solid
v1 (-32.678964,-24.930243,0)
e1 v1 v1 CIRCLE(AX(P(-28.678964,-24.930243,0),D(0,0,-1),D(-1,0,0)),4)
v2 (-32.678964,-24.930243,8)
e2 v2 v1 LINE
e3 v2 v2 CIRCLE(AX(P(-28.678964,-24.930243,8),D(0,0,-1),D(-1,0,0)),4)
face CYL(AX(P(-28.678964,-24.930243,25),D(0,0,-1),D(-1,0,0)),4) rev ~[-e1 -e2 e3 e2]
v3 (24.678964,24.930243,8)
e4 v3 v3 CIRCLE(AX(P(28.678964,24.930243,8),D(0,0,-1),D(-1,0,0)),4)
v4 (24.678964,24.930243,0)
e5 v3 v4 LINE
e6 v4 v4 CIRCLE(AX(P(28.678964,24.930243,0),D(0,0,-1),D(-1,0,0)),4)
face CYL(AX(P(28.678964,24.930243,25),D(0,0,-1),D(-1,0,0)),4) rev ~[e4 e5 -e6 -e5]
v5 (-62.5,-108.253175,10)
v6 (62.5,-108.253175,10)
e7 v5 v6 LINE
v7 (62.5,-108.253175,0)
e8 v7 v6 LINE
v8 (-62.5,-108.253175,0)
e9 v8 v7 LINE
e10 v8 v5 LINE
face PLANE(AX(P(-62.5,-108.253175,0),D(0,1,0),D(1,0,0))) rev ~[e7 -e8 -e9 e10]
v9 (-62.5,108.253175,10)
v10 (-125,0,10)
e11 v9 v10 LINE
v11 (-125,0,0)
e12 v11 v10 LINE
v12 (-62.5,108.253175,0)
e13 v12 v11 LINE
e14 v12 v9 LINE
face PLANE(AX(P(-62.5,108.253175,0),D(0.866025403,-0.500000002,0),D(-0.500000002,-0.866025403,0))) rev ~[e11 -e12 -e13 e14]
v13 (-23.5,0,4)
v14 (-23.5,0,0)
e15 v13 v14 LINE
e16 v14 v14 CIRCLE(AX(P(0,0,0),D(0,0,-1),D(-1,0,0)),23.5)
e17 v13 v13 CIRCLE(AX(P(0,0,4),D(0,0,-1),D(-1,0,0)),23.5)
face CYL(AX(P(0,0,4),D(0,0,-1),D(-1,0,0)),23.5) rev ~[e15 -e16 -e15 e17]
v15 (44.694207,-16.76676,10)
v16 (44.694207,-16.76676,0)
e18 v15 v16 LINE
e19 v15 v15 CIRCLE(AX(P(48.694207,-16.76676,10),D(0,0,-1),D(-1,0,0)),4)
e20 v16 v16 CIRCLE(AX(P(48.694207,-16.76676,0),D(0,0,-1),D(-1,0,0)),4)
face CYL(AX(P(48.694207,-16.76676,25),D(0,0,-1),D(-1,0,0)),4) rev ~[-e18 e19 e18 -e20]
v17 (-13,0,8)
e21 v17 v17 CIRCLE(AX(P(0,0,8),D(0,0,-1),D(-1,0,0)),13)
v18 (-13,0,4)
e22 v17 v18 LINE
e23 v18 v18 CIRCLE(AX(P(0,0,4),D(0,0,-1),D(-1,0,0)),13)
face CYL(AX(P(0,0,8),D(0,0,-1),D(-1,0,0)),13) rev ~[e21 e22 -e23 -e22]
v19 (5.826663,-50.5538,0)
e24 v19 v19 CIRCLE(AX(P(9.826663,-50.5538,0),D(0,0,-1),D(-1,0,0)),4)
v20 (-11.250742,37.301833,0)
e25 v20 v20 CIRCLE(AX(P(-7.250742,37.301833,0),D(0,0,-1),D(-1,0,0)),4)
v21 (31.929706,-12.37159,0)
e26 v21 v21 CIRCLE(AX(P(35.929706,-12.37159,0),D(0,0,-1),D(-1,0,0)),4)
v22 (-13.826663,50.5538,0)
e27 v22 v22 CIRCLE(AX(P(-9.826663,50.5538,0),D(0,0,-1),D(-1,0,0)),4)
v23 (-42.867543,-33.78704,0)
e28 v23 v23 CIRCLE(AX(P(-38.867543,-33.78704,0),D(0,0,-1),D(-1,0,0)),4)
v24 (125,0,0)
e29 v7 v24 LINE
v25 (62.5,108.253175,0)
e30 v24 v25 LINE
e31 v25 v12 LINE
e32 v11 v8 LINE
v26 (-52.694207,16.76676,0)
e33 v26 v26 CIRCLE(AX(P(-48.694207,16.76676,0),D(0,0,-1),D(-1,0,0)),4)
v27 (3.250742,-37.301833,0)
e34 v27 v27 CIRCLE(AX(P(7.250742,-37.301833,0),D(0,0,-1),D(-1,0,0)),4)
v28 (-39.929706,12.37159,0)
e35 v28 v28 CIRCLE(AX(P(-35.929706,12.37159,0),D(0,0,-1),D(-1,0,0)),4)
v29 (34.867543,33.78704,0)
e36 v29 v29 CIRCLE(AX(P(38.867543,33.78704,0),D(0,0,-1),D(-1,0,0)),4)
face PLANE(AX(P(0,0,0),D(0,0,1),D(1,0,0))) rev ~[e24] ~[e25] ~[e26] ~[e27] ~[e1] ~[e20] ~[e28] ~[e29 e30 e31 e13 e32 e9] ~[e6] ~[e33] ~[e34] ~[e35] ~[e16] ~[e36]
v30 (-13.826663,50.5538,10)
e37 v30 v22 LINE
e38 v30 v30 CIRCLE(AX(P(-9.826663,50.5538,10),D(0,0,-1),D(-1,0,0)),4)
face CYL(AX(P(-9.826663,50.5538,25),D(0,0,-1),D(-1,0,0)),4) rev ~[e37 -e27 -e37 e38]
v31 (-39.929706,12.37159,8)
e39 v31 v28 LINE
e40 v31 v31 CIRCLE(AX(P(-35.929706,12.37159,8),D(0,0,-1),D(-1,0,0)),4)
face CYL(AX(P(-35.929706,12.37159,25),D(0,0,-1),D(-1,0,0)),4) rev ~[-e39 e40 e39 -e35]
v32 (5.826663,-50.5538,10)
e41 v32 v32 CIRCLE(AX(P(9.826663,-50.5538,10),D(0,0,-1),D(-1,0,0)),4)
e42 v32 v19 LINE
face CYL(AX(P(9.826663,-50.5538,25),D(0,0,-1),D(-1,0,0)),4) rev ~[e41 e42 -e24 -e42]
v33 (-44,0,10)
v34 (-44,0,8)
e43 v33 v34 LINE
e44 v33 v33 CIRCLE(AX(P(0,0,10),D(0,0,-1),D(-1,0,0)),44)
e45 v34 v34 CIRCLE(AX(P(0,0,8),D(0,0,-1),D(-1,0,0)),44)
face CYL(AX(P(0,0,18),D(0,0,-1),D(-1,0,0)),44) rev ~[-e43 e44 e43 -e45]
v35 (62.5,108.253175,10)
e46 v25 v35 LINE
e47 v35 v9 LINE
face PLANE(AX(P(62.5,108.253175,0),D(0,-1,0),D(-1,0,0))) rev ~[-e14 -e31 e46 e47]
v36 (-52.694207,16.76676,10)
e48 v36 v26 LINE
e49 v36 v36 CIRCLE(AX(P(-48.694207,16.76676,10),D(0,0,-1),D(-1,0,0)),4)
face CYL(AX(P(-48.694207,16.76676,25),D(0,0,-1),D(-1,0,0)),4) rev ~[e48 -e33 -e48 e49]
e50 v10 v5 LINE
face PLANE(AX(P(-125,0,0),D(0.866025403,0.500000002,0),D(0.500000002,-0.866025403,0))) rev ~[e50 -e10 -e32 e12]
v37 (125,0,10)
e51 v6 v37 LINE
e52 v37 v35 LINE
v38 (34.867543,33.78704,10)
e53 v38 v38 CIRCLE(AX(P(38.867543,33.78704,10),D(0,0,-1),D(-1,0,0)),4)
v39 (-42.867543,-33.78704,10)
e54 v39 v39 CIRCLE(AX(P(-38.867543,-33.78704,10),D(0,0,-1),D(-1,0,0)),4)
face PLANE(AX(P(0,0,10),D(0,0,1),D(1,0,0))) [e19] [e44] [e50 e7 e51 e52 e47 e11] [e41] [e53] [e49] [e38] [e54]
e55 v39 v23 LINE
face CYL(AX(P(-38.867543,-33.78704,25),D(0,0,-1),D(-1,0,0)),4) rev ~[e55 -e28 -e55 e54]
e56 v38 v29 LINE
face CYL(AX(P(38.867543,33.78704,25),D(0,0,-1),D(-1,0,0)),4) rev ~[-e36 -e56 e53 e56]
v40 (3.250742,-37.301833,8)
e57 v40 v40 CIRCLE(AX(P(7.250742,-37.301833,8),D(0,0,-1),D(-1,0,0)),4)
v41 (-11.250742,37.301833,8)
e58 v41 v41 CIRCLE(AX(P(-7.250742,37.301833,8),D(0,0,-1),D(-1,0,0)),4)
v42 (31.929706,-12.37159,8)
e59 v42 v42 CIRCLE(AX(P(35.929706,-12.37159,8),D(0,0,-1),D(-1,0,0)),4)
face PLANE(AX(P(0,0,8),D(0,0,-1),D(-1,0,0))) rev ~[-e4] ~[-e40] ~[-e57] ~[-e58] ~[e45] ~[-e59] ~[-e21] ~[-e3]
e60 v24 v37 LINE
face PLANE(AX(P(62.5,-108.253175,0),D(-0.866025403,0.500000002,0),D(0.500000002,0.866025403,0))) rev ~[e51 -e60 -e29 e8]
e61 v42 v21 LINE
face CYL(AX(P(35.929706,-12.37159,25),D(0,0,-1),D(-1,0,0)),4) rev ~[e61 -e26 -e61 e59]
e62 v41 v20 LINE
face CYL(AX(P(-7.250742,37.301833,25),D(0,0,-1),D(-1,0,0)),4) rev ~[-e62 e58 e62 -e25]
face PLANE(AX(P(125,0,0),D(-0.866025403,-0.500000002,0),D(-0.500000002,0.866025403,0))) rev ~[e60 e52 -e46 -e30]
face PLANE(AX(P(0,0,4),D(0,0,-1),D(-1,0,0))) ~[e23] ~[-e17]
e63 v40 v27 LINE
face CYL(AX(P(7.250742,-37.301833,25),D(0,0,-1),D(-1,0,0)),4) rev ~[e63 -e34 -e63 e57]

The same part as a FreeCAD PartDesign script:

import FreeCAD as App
import Part
import Sketcher
from FreeCAD import Vector
Q = App.Units.Quantity


def add_polygon(sketch, points):
    """Adds a closed chain of lines whose ends are joined by coincident constraints."""
    first, n = sketch.GeometryCount, len(points)
    for a, b in zip(points, points[1:] + points[:1]):
        sketch.addGeometry(Part.LineSegment(App.Vector(*a, 0), App.Vector(*b, 0)), False)
    for i in range(n):
        sketch.addConstraint(Sketcher.Constraint("Coincident", first + i, 2, first + (i + 1) % n, 1))

doc = App.newDocument("Part")
body = doc.addObject("PartDesign::Body", "Body")

sketch1 = doc.addObject("Sketcher::SketchObject", "Sketch")
body.addObject(sketch1)
sketch1.AttachmentSupport = (doc.XY_Plane, [""])
sketch1.MapMode = "FlatFace"
add_polygon(sketch1, [(62, -108), (125, 0), (62, 108), (-62, 108), (-125, 0), (-62, -108)])
sketch1.addConstraint([
    Sketcher.Constraint("Horizontal", 2),
    Sketcher.Constraint("Horizontal", 5),
    Sketcher.Constraint("Symmetric", 0, 2, 3, 2, -1, 1),
    Sketcher.Constraint("Symmetric", 1, 2, 4, 2, -1, 1),
    Sketcher.Constraint("PointOnObject", 0, 2, -1),
    Sketcher.Constraint("Parallel", 0, 3),
    Sketcher.Constraint("Vertical", 2, 2, 4, 2),
    Sketcher.Constraint("DistanceX", 2, 2, 2, 1, 125.0),
    Sketcher.Constraint("Angle", 0, Q("60 deg")),
    Sketcher.Constraint("Distance", 0, 125.0),
])
pad1 = doc.addObject("PartDesign::Pad", "Pad")
body.addObject(pad1)
pad1.Profile = sketch1
pad1.Length = 10

sketch2 = doc.addObject("Sketcher::SketchObject", "Sketch001")
body.addObject(sketch2)
sketch2.AttachmentSupport = (doc.XZ_Plane, [""])
sketch2.MapMode = "FlatFace"
add_polygon(sketch2, [(-23.5, 4), (-23.5, -10), (0, -10), (0, 18), (-44, 18), (-44, 8), (-13, 8), (-13, 4)])
sketch2.addConstraint([
    Sketcher.Constraint("Vertical", 0),
    Sketcher.Constraint("Horizontal", 1),
    Sketcher.Constraint("Vertical", 2),
    Sketcher.Constraint("Horizontal", 3),
    Sketcher.Constraint("Vertical", 4),
    Sketcher.Constraint("Horizontal", 5),
    Sketcher.Constraint("Vertical", 6),
    Sketcher.Constraint("Horizontal", 7),
    Sketcher.Constraint("PointOnObject", 1, 2, -2),
    Sketcher.Constraint("DistanceX", 3, 2, 3, 1, 44.0),
    Sketcher.Constraint("DistanceX", 5, 1, 5, 2, 31.0),
    Sketcher.Constraint("DistanceY", 0, 2, 0, 1, 14.0),
    Sketcher.Constraint("DistanceY", 2, 1, 2, 2, 28.0),
    Sketcher.Constraint("DistanceY", 4, 2, 4, 1, 10.0),
    Sketcher.Constraint("DistanceX", 1, 1, 1, 2, 23.5),
    Sketcher.Constraint("DistanceY", 0, 2, -1, 1, 10.0),
])
groove = doc.addObject("PartDesign::Groove", "Groove")
body.addObject(groove)
groove.Profile = sketch2
groove.ReferenceAxis = (sketch2, ["V_Axis"])
groove.Angle = 360

sketch3 = doc.addObject("Sketcher::SketchObject", "Sketch002")
body.addObject(sketch3)
sketch3.AttachmentSupport = (doc.XY_Plane, [""])
sketch3.MapMode = "FlatFace"
sketch3.AttachmentOffset = App.Placement(Vector(0, 0, 10), App.Rotation())
sketch3.addGeometry([
    Part.Circle(Vector(-9.8, 50.6, 0), Vector(0, 0, 1), 4),
    Part.Circle(Vector(38.9, 33.8, 0), Vector(0, 0, 1), 4),
    Part.Circle(Vector(48.7, -16.8, 0), Vector(0, 0, 1), 4),
    Part.Circle(Vector(9.8, -50.6, 0), Vector(0, 0, 1), 4),
    Part.Circle(Vector(-38.9, -33.8, 0), Vector(0, 0, 1), 4),
    Part.Circle(Vector(-48.7, 16.8, 0), Vector(0, 0, 1), 4),
], False)
sketch3.addConstraint([
    Sketcher.Constraint("Equal", 0, 1),
    Sketcher.Constraint("Equal", 1, 2),
    Sketcher.Constraint("Equal", 2, 3),
    Sketcher.Constraint("Equal", 3, 4),
    Sketcher.Constraint("Equal", 4, 5),
    Sketcher.Constraint("Symmetric", 0, 3, 3, 3, -1, 1),
    Sketcher.Constraint("Symmetric", 1, 3, 4, 3, -1, 1),
    Sketcher.Constraint("Symmetric", 2, 3, 5, 3, -1, 1),
    Sketcher.Constraint("Diameter", 0, 8.0),
    Sketcher.Constraint("DistanceY", -1, 1, 0, 3, 50.5538),
    Sketcher.Constraint("DistanceY", 2, 3, 1, 3, 50.5538),
    Sketcher.Constraint("DistanceY", -1, 1, 1, 3, 33.78704),
    Sketcher.Constraint("DistanceX", 0, 3, 2, 3, 58.52087),
    Sketcher.Constraint("DistanceX", 3, 3, 1, 3, 29.04088),
    Sketcher.Constraint("DistanceX", 0, 3, -1, 1, 9.826663),
])
doc.recompute()
hole = doc.addObject("PartDesign::Hole", "Hole")
body.addObject(hole)
hole.Profile = sketch3
hole.ThreadType = "None"
hole.Diameter = 8
hole.DepthType = "Dimension"
hole.Depth = 15
hole.DrillPoint = "Flat"

sketch4 = doc.addObject("Sketcher::SketchObject", "Sketch003")
body.addObject(sketch4)
sketch4.AttachmentSupport = (doc.XY_Plane, [""])
sketch4.MapMode = "FlatFace"
sketch4.AttachmentOffset = App.Placement(Vector(0, 0, 10), App.Rotation())
sketch4.addGeometry([
    Part.Circle(Vector(-7.3, 37.3, 0), Vector(0, 0, 1), 4),
    Part.Circle(Vector(28.7, 24.9, 0), Vector(0, 0, 1), 4),
    Part.Circle(Vector(35.9, -12.4, 0), Vector(0, 0, 1), 4),
    Part.Circle(Vector(7.3, -37.3, 0), Vector(0, 0, 1), 4),
    Part.Circle(Vector(-28.7, -24.9, 0), Vector(0, 0, 1), 4),
    Part.Circle(Vector(-35.9, 12.4, 0), Vector(0, 0, 1), 4),
], False)
sketch4.addConstraint([
    Sketcher.Constraint("Equal", 0, 1),
    Sketcher.Constraint("Equal", 1, 2),
    Sketcher.Constraint("Equal", 2, 3),
    Sketcher.Constraint("Equal", 3, 4),
    Sketcher.Constraint("Equal", 4, 5),
    Sketcher.Constraint("Symmetric", 0, 3, 3, 3, -1, 1),
    Sketcher.Constraint("Symmetric", 1, 3, 4, 3, -1, 1),
    Sketcher.Constraint("Symmetric", 2, 3, 5, 3, -1, 1),
    Sketcher.Constraint("Diameter", 0, 8.0),
    Sketcher.Constraint("DistanceX", 0, 3, -1, 1, 7.250742),
    Sketcher.Constraint("DistanceY", 2, 3, -1, 1, 12.37159),
    Sketcher.Constraint("DistanceY", 1, 3, 0, 3, 12.37159),
    Sketcher.Constraint("DistanceX", 0, 3, 2, 3, 43.180448),
    Sketcher.Constraint("DistanceX", 4, 3, 2, 3, 64.60867),
    Sketcher.Constraint("DistanceY", -1, 1, 0, 3, 37.301833),
])
doc.recompute()
hole2 = doc.addObject("PartDesign::Hole", "Hole001")
body.addObject(hole2)
hole2.Profile = sketch4
hole2.ThreadType = "None"
hole2.Diameter = 8
hole2.DepthType = "Dimension"
hole2.Depth = 15
hole2.DrillPoint = "Flat"

doc.recompute()
